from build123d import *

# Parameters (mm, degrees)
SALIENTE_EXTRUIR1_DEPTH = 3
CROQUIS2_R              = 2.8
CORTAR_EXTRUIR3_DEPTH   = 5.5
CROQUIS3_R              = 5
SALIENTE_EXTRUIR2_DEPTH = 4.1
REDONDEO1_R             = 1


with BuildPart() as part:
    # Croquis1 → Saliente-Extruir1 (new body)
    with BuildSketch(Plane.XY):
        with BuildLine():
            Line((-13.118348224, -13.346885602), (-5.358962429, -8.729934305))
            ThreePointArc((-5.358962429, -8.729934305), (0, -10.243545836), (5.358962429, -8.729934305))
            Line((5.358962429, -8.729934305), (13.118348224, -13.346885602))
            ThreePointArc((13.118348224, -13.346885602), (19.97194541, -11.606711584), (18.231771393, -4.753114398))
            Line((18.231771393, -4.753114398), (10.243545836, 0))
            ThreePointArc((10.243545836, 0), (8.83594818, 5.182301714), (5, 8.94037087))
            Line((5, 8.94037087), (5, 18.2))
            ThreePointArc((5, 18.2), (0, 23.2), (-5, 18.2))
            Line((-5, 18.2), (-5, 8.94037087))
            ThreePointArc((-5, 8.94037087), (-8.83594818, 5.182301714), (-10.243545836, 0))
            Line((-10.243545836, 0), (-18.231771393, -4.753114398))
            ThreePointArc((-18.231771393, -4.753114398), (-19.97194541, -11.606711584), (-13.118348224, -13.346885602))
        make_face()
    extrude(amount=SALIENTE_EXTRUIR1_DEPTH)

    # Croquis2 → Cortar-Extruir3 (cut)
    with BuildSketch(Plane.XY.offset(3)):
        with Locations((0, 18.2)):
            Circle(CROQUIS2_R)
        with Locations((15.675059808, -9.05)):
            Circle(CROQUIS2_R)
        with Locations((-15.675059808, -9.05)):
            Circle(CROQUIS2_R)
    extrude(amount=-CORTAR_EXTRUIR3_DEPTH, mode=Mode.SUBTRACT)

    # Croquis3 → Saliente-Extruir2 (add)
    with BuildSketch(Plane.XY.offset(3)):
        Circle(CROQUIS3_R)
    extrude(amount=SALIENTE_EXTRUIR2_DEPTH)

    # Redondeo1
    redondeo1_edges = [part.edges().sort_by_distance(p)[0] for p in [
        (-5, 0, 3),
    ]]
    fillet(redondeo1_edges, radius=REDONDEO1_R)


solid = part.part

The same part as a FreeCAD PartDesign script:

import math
import FreeCAD as App
import Part
import Sketcher

V = App.Vector
Q = App.Units.Quantity


def edges_at(feature, points):
    """Names of the edges that pass closest to the given points."""
    edges = feature.Shape.Edges
    near = lambda p: min(range(len(edges)), key=lambda i: edges[i].distToShape(Part.Vertex(*p))[0])
    return sorted({f"Edge{near(p) + 1}" for p in points})

doc = App.newDocument("Part")
body = doc.addObject("PartDesign::Body", "Body")

sketch1 = doc.addObject("Sketcher::SketchObject", "Sketch")
body.addObject(sketch1)
sketch1.AttachmentSupport = (doc.XY_Plane, [""])
sketch1.MapMode = "FlatFace"
sketch1.addGeometry([
    Part.LineSegment(V(-13, -13, 0), V(-5, -9, 0)),
    Part.ArcOfCircle(Part.Circle(V(0, 0, 0), V(0, 0, 1), 10), math.radians(-122), math.radians(-58)),
    Part.LineSegment(V(5, -9, 0), V(13, -13, 0)),
    Part.ArcOfCircle(Part.Circle(V(16, -9, 0), V(0, 0, 1), 5), math.radians(-121), math.radians(59)),
    Part.LineSegment(V(18, -5, 0), V(10, 0, 0)),
    Part.ArcOfCircle(Part.Circle(V(0, 0, 0), V(0, 0, 1), 10), math.radians(0), math.radians(61)),
    Part.LineSegment(V(5, 9, 0), V(5, 18, 0)),
    Part.ArcOfCircle(Part.Circle(V(0, 18, 0), V(0, 0, 1), 5), math.radians(0), math.radians(180)),
    Part.LineSegment(V(-5, 18, 0), V(-5, 9, 0)),
    Part.ArcOfCircle(Part.Circle(V(0, 0, 0), V(0, 0, 1), 10), math.radians(119), math.radians(180)),
    Part.LineSegment(V(-10, 0, 0), V(-18, -5, 0)),
    Part.ArcOfCircle(Part.Circle(V(-16, -9, 0), V(0, 0, 1), 5), math.radians(121), math.radians(301)),
], False)
sketch1.addConstraint([
    Sketcher.Constraint("Coincident", 0, 2, 1, 1),
    Sketcher.Constraint("Coincident", 1, 2, 2, 1),
    Sketcher.Constraint("Tangent", 2, 2, 3, 1),
    Sketcher.Constraint("Tangent", 3, 2, 4, 1),
    Sketcher.Constraint("Coincident", 4, 2, 5, 1),
    Sketcher.Constraint("Coincident", 5, 2, 6, 1),
    Sketcher.Constraint("Tangent", 6, 2, 7, 1),
    Sketcher.Constraint("Tangent", 7, 2, 8, 1),
    Sketcher.Constraint("Coincident", 8, 2, 9, 1),
    Sketcher.Constraint("Coincident", 9, 2, 10, 1),
    Sketcher.Constraint("Tangent", 10, 2, 11, 1),
    Sketcher.Constraint("Tangent", 11, 2, 0, 1),
    Sketcher.Constraint("Vertical", 6),
    Sketcher.Constraint("Vertical", 8),
    Sketcher.Constraint("Coincident", 1, 3, -1, 1),
    Sketcher.Constraint("Coincident", 5, 3, -1, 1),
    Sketcher.Constraint("Coincident", 9, 3, -1, 1),
    Sketcher.Constraint("Equal", 1, 5),
    Sketcher.Constraint("Equal", 3, 7),
    Sketcher.Constraint("Equal", 5, 9),
    Sketcher.Constraint("Equal", 7, 11),
    Sketcher.Constraint("Symmetric", 3, 3, 11, 3, -2),
    Sketcher.Constraint("PointOnObject", 7, 3, -2),
    Sketcher.Constraint("PointOnObject", 4, 2, -1),
    Sketcher.Constraint("PointOnObject", 9, 2, -1),
    Sketcher.Constraint("Parallel", 2, 4),
    Sketcher.Constraint("Parallel", 0, 10),
    Sketcher.Constraint("Radius", 3, Q("5 mm")),
    Sketcher.Constraint("DistanceY", -1, 1, 7, 3, Q("18.2 mm")),
    Sketcher.Constraint("DistanceY", 3, 3, -1, 1, Q("9.05 mm")),
    Sketcher.Constraint("Radius", 1, Q("10.243546 mm")),
    Sketcher.Constraint("Distance", 0, Q("9.029081 mm")),
])
pad1 = doc.addObject("PartDesign::Pad", "Pad")
body.addObject(pad1)
pad1.Profile = sketch1
pad1.Length = 3

sketch2 = doc.addObject("Sketcher::SketchObject", "Sketch001")
body.addObject(sketch2)
sketch2.AttachmentSupport = (doc.XY_Plane, [""])
sketch2.MapMode = "FlatFace"
sketch2.AttachmentOffset = App.Placement(V(0, 0, 3), App.Rotation())
sketch2.addGeometry([
    Part.Circle(V(0, 18.2, 0), V(0, 0, 1), 2.8),
    Part.Circle(V(15.7, -9.1, 0), V(0, 0, 1), 2.8),
    Part.Circle(V(-15.7, -9.1, 0), V(0, 0, 1), 2.8),
], False)
sketch2.addConstraint([
    Sketcher.Constraint("Equal", 0, 1),
    Sketcher.Constraint("Equal", 1, 2),
    Sketcher.Constraint("Symmetric", 1, 3, 2, 3, -2),
    Sketcher.Constraint("PointOnObject", 0, 3, -2),
    Sketcher.Constraint("Diameter", 0, Q("5.6 mm")),
    Sketcher.Constraint("DistanceY", -1, 1, 0, 3, Q("18.2 mm")),
    Sketcher.Constraint("DistanceY", 1, 3, -1, 1, Q("9.05 mm")),
    Sketcher.Constraint("DistanceX", -1, 1, 1, 3, Q("15.67506 mm")),
])
pocket1 = doc.addObject("PartDesign::Pocket", "Pocket")
body.addObject(pocket1)
pocket1.Profile = sketch2
pocket1.Length = 5.5

sketch3 = doc.addObject("Sketcher::SketchObject", "Sketch002")
body.addObject(sketch3)
sketch3.AttachmentSupport = (doc.XY_Plane, [""])
sketch3.MapMode = "FlatFace"
sketch3.AttachmentOffset = App.Placement(V(0, 0, 3), App.Rotation())
sketch3.addGeometry(Part.Circle(V(0, 0, 0), V(0, 0, 1), 5), False)
sketch3.addConstraint([
    Sketcher.Constraint("Coincident", 0, 3, -1, 1),
    Sketcher.Constraint("Diameter", 0, Q("10 mm")),
])
pad2 = doc.addObject("PartDesign::Pad", "Pad001")
body.addObject(pad2)
pad2.Profile = sketch3
pad2.Length = 4.1
doc.recompute()

fillet = doc.addObject("PartDesign::Fillet", "Fillet")
body.addObject(fillet)
fillet.Base = (pad2, edges_at(pad2, [(-5, 0, 3)]))
fillet.Radius = 1

doc.recompute()
